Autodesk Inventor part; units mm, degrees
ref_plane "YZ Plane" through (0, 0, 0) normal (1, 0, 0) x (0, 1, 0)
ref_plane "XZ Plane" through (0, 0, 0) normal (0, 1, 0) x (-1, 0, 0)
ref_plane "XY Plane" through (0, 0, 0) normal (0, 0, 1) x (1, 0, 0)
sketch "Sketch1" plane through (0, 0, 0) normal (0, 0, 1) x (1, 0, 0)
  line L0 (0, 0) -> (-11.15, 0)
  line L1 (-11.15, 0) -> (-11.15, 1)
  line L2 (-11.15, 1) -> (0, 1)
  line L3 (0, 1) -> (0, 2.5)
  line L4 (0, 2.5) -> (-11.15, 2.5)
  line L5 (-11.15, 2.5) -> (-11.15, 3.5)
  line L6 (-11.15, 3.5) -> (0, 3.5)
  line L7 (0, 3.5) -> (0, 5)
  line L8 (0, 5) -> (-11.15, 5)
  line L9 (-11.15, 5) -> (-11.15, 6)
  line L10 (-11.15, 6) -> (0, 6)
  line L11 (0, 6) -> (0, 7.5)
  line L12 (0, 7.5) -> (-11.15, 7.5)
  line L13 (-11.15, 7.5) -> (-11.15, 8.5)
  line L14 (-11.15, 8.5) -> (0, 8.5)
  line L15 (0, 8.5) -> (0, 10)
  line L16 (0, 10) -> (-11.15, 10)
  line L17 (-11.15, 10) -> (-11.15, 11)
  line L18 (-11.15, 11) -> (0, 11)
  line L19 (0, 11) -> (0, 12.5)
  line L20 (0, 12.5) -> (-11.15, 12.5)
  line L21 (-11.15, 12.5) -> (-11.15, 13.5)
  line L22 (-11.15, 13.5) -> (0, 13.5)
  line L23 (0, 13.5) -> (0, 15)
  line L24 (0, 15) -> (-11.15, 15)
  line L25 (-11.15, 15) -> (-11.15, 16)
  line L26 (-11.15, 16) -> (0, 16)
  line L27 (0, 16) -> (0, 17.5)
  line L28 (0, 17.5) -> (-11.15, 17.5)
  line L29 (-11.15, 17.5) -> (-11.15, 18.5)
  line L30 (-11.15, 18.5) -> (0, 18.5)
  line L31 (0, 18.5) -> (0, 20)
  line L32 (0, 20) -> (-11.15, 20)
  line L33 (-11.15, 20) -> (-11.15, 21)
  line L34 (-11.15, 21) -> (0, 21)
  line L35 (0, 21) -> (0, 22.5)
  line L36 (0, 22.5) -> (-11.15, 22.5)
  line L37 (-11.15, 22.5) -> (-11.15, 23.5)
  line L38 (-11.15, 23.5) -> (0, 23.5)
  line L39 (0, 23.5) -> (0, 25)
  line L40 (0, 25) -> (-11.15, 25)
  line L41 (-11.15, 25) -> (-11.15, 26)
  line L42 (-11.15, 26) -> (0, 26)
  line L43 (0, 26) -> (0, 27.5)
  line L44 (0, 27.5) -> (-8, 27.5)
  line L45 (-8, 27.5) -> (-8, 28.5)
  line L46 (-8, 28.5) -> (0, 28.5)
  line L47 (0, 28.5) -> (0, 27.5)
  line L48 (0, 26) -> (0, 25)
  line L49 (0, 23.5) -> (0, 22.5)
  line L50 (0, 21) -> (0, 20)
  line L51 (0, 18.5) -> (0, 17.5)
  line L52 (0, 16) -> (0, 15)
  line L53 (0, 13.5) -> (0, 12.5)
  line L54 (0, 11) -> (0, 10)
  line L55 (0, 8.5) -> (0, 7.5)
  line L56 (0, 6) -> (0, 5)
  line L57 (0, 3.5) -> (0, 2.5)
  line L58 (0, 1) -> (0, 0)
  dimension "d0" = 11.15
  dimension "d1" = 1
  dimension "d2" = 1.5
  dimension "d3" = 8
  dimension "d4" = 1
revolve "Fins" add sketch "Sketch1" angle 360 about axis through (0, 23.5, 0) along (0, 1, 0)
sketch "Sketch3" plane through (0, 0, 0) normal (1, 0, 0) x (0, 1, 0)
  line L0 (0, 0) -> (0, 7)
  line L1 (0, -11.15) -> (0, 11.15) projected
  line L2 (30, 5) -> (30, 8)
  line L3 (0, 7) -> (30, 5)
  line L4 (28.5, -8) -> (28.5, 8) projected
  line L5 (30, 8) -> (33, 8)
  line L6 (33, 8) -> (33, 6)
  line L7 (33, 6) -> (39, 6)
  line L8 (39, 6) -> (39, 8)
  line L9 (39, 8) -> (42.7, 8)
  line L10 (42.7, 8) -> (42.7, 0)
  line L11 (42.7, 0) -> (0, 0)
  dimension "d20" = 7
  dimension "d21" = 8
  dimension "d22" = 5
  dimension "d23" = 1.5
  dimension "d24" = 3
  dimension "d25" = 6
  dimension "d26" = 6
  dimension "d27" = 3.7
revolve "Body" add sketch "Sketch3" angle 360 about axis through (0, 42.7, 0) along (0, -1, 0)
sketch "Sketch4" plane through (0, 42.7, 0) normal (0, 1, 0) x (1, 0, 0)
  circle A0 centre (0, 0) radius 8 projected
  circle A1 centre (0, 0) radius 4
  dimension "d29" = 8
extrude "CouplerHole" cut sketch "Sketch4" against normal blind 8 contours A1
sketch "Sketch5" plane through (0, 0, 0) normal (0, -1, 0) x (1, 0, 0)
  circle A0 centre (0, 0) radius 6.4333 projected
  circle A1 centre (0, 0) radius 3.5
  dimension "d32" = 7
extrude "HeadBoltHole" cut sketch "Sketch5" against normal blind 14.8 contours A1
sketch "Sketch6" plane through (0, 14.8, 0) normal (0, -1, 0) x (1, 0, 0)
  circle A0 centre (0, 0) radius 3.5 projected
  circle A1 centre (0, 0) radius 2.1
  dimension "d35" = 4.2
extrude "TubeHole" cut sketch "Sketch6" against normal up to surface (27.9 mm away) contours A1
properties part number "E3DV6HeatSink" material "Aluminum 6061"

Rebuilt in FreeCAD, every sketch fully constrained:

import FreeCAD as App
import Part
import Sketcher


def add_polygon(sketch, points):
    """Adds a closed chain of lines whose ends are joined by coincident constraints."""
    first, n = sketch.GeometryCount, len(points)
    for a, b in zip(points, points[1:] + points[:1]):
        sketch.addGeometry(Part.LineSegment(App.Vector(*a, 0), App.Vector(*b, 0)), False)
    for i in range(n):
        sketch.addConstraint(Sketcher.Constraint("Coincident", first + i, 2, first + (i + 1) % n, 1))

doc = App.newDocument("Part")
body = doc.addObject("PartDesign::Body", "Body")
body.AllowCompound = True

# Sketch on XY plane
sketch1 = doc.addObject("Sketcher::SketchObject", "Sketch")
body.addObject(sketch1)
sketch1.AttachmentSupport = (doc.XY_Plane, [""])
sketch1.MapMode = "FlatFace"
add_polygon(sketch1, [(-8, 27.5), (0, 27.5), (0, 28.5), (-8, 28.5)])  # lines 0-3
add_polygon(sketch1, [(-11.2, 25), (0, 25), (0, 26), (-11.2, 26)])  # lines 4-7
add_polygon(sketch1, [(-11.2, 22.5), (0, 22.5), (0, 23.5), (-11.2, 23.5)])  # lines 8-11
add_polygon(sketch1, [(-11.2, 20), (0, 20), (0, 21), (-11.2, 21)])  # lines 12-15
add_polygon(sketch1, [(-11.2, 17.5), (0, 17.5), (0, 18.5), (-11.2, 18.5)])  # lines 16-19
add_polygon(sketch1, [(-11.2, 15), (0, 15), (0, 16), (-11.2, 16)])  # lines 20-23
add_polygon(sketch1, [(-11.2, 12.5), (0, 12.5), (0, 13.5), (-11.2, 13.5)])  # lines 24-27
add_polygon(sketch1, [(-11.2, 10), (0, 10), (0, 11), (-11.2, 11)])  # lines 28-31
add_polygon(sketch1, [(-11.2, 7.5), (0, 7.5), (0, 8.5), (-11.2, 8.5)])  # lines 32-35
add_polygon(sketch1, [(-11.2, 5), (0, 5), (0, 6), (-11.2, 6)])  # lines 36-39
add_polygon(sketch1, [(-11.2, 2.5), (0, 2.5), (0, 3.5), (-11.2, 3.5)])  # lines 40-43
add_polygon(sketch1, [(-11.2, 0), (0, 0), (0, 1), (-11.2, 1)])  # lines 44-47
sketch1.addConstraint(Sketcher.Constraint("Horizontal", 0))
sketch1.addConstraint(Sketcher.Constraint("Vertical", 1))
sketch1.addConstraint(Sketcher.Constraint("Horizontal", 2))
sketch1.addConstraint(Sketcher.Constraint("Vertical", 3))
sketch1.addConstraint(Sketcher.Constraint("Horizontal", 4))
sketch1.addConstraint(Sketcher.Constraint("Vertical", 5))
sketch1.addConstraint(Sketcher.Constraint("Horizontal", 6))
sketch1.addConstraint(Sketcher.Constraint("Vertical", 7))
sketch1.addConstraint(Sketcher.Constraint("Horizontal", 8))
sketch1.addConstraint(Sketcher.Constraint("Vertical", 9))
sketch1.addConstraint(Sketcher.Constraint("Horizontal", 10))
sketch1.addConstraint(Sketcher.Constraint("Vertical", 11))
sketch1.addConstraint(Sketcher.Constraint("Horizontal", 12))
sketch1.addConstraint(Sketcher.Constraint("Vertical", 13))
sketch1.addConstraint(Sketcher.Constraint("Horizontal", 14))
sketch1.addConstraint(Sketcher.Constraint("Vertical", 15))
sketch1.addConstraint(Sketcher.Constraint("Horizontal", 16))
sketch1.addConstraint(Sketcher.Constraint("Vertical", 17))
sketch1.addConstraint(Sketcher.Constraint("Horizontal", 18))
sketch1.addConstraint(Sketcher.Constraint("Vertical", 19))
sketch1.addConstraint(Sketcher.Constraint("Horizontal", 20))
sketch1.addConstraint(Sketcher.Constraint("Vertical", 21))
sketch1.addConstraint(Sketcher.Constraint("Horizontal", 22))
sketch1.addConstraint(Sketcher.Constraint("Vertical", 23))
sketch1.addConstraint(Sketcher.Constraint("Horizontal", 24))
sketch1.addConstraint(Sketcher.Constraint("Vertical", 25))
sketch1.addConstraint(Sketcher.Constraint("Horizontal", 26))
sketch1.addConstraint(Sketcher.Constraint("Vertical", 27))
sketch1.addConstraint(Sketcher.Constraint("Horizontal", 28))
sketch1.addConstraint(Sketcher.Constraint("Vertical", 29))
sketch1.addConstraint(Sketcher.Constraint("Horizontal", 30))
sketch1.addConstraint(Sketcher.Constraint("Vertical", 31))
sketch1.addConstraint(Sketcher.Constraint("Horizontal", 32))
sketch1.addConstraint(Sketcher.Constraint("Vertical", 33))
sketch1.addConstraint(Sketcher.Constraint("Horizontal", 34))
sketch1.addConstraint(Sketcher.Constraint("Vertical", 35))
sketch1.addConstraint(Sketcher.Constraint("Horizontal", 36))
sketch1.addConstraint(Sketcher.Constraint("Vertical", 37))
sketch1.addConstraint(Sketcher.Constraint("Horizontal", 38))
sketch1.addConstraint(Sketcher.Constraint("Vertical", 39))
sketch1.addConstraint(Sketcher.Constraint("Horizontal", 40))
sketch1.addConstraint(Sketcher.Constraint("Vertical", 41))
sketch1.addConstraint(Sketcher.Constraint("Horizontal", 42))
sketch1.addConstraint(Sketcher.Constraint("Vertical", 43))
sketch1.addConstraint(Sketcher.Constraint("Horizontal", 44))
sketch1.addConstraint(Sketcher.Constraint("Vertical", 45))
sketch1.addConstraint(Sketcher.Constraint("Horizontal", 46))
sketch1.addConstraint(Sketcher.Constraint("Vertical", 47))
sketch1.addConstraint(Sketcher.Constraint("Coincident", 44, 2, -1, 1))
sketch1.addConstraint(Sketcher.Constraint("PointOnObject", 0, 2, -2))
sketch1.addConstraint(Sketcher.Constraint("PointOnObject", 4, 2, -2))
sketch1.addConstraint(Sketcher.Constraint("PointOnObject", 8, 2, -2))
sketch1.addConstraint(Sketcher.Constraint("PointOnObject", 12, 2, -2))
sketch1.addConstraint(Sketcher.Constraint("PointOnObject", 16, 2, -2))
sketch1.addConstraint(Sketcher.Constraint("PointOnObject", 20, 2, -2))
sketch1.addConstraint(Sketcher.Constraint("PointOnObject", 24, 2, -2))
sketch1.addConstraint(Sketcher.Constraint("PointOnObject", 28, 2, -2))
sketch1.addConstraint(Sketcher.Constraint("PointOnObject", 32, 2, -2))
sketch1.addConstraint(Sketcher.Constraint("PointOnObject", 36, 2, -2))
sketch1.addConstraint(Sketcher.Constraint("PointOnObject", 40, 2, -2))
sketch1.addConstraint(Sketcher.Constraint("Vertical", 7, 2, 10, 2))
sketch1.addConstraint(Sketcher.Constraint("Vertical", 11, 2, 14, 2))
sketch1.addConstraint(Sketcher.Constraint("Vertical", 15, 2, 18, 2))
sketch1.addConstraint(Sketcher.Constraint("Vertical", 19, 2, 22, 2))
sketch1.addConstraint(Sketcher.Constraint("Vertical", 23, 2, 26, 2))
sketch1.addConstraint(Sketcher.Constraint("Vertical", 27, 2, 30, 2))
sketch1.addConstraint(Sketcher.Constraint("Vertical", 31, 2, 34, 2))
sketch1.addConstraint(Sketcher.Constraint("Vertical", 35, 2, 38, 2))
sketch1.addConstraint(Sketcher.Constraint("Vertical", 39, 2, 42, 2))
sketch1.addConstraint(Sketcher.Constraint("Vertical", 43, 2, 46, 2))
sketch1.addConstraint(Sketcher.Constraint("Equal", 3, 5))
sketch1.addConstraint(Sketcher.Constraint("Equal", 7, 9))
sketch1.addConstraint(Sketcher.Constraint("Equal", 11, 13))
sketch1.addConstraint(Sketcher.Constraint("Equal", 15, 17))
sketch1.addConstraint(Sketcher.Constraint("Equal", 19, 21))
sketch1.addConstraint(Sketcher.Constraint("Equal", 23, 25))
sketch1.addConstraint(Sketcher.Constraint("Equal", 27, 29))
sketch1.addConstraint(Sketcher.Constraint("Equal", 31, 33))
sketch1.addConstraint(Sketcher.Constraint("Equal", 35, 37))
sketch1.addConstraint(Sketcher.Constraint("Equal", 39, 41))
sketch1.addConstraint(Sketcher.Constraint("Equal", 43, 45))
sketch1.addConstraint(Sketcher.Constraint("DistanceX", 0, 1, 0, 2, 8.0))
sketch1.addConstraint(Sketcher.Constraint("DistanceY", 1, 1, 1, 2, 1.0))
sketch1.addConstraint(Sketcher.Constraint("DistanceX", 4, 1, 4, 2, 11.15))
sketch1.addConstraint(Sketcher.Constraint("DistanceY", 5, 2, 0, 2, 1.5))
sketch1.addConstraint(Sketcher.Constraint("DistanceY", 9, 2, 4, 2, 1.5))
sketch1.addConstraint(Sketcher.Constraint("DistanceY", 13, 2, 8, 2, 1.5))
sketch1.addConstraint(Sketcher.Constraint("DistanceY", 17, 2, 12, 2, 1.5))
sketch1.addConstraint(Sketcher.Constraint("DistanceY", 21, 2, 16, 2, 1.5))
sketch1.addConstraint(Sketcher.Constraint("DistanceY", 25, 2, 20, 2, 1.5))
sketch1.addConstraint(Sketcher.Constraint("DistanceY", 29, 2, 24, 2, 1.5))
sketch1.addConstraint(Sketcher.Constraint("DistanceY", 33, 2, 28, 2, 1.5))
sketch1.addConstraint(Sketcher.Constraint("DistanceY", 37, 2, 32, 2, 1.5))
sketch1.addConstraint(Sketcher.Constraint("DistanceY", 41, 2, 36, 2, 1.5))
sketch1.addConstraint(Sketcher.Constraint("DistanceY", 45, 2, 40, 2, 1.5))
revolution = doc.addObject("PartDesign::Revolution", "Revolution")
body.addObject(revolution)
revolution.Profile = sketch1
revolution.ReferenceAxis = (sketch1, ["V_Axis"])
revolution.Angle = 360

# Sketch on YZ plane
sketch2 = doc.addObject("Sketcher::SketchObject", "Sketch001")
body.addObject(sketch2)
sketch2.AttachmentSupport = (doc.YZ_Plane, [""])
sketch2.MapMode = "FlatFace"
add_polygon(sketch2, [(0, 7), (0, 0), (42.7, 0), (42.7, 8), (39, 8), (39, 6), (33, 6), (33, 8), (30, 8), (30, 5)])  # lines 0-9
sketch2.addConstraint(Sketcher.Constraint("Vertical", 0))
sketch2.addConstraint(Sketcher.Constraint("Horizontal", 1))
sketch2.addConstraint(Sketcher.Constraint("Vertical", 2))
sketch2.addConstraint(Sketcher.Constraint("Horizontal", 3))
sketch2.addConstraint(Sketcher.Constraint("Vertical", 4))
sketch2.addConstraint(Sketcher.Constraint("Horizontal", 5))
sketch2.addConstraint(Sketcher.Constraint("Vertical", 6))
sketch2.addConstraint(Sketcher.Constraint("Horizontal", 7))
sketch2.addConstraint(Sketcher.Constraint("Vertical", 8))
sketch2.addConstraint(Sketcher.Constraint("Coincident", 0, 2, -1, 1))
sketch2.addConstraint(Sketcher.Constraint("Horizontal", 3, 2, 6, 2))
sketch2.addConstraint(Sketcher.Constraint("Equal", 7, 8))
sketch2.addConstraint(Sketcher.Constraint("DistanceX", 5, 2, 5, 1, 6.0))
sketch2.addConstraint(Sketcher.Constraint("DistanceX", 7, 2, 7, 1, 3.0))
sketch2.addConstraint(Sketcher.Constraint("DistanceY", 0, 2, 0, 1, 7.0))
sketch2.addConstraint(Sketcher.Constraint("DistanceY", 2, 1, 2, 2, 8.0))
sketch2.addConstraint(Sketcher.Constraint("DistanceX", 3, 2, 3, 1, 3.7))
sketch2.addConstraint(Sketcher.Constraint("DistanceY", -1, 1, 4, 2, 6.0))
sketch2.addConstraint(Sketcher.Constraint("DistanceX", 1, 1, 1, 2, 42.7))
revolution2 = doc.addObject("PartDesign::Revolution", "Revolution001")
body.addObject(revolution2)
revolution2.Profile = sketch2
revolution2.ReferenceAxis = (sketch2, ["H_Axis"])
revolution2.Angle = 360

# Sketch on XZ plane
sketch3 = doc.addObject("Sketcher::SketchObject", "Sketch002")
body.addObject(sketch3)
sketch3.AttachmentSupport = (doc.XZ_Plane, [""])
sketch3.MapMode = "FlatFace"
sketch3.AttachmentOffset = App.Placement(App.Vector(0, 0, -42.7), App.Rotation())
sketch3.addGeometry(Part.Circle(App.Vector(0, 0, 0), App.Vector(0, 0, 1), 4), False)
sketch3.addConstraint(Sketcher.Constraint("Coincident", 0, 3, -1, 1))
sketch3.addConstraint(Sketcher.Constraint("Diameter", 0, 8.0))
pocket1 = doc.addObject("PartDesign::Pocket", "Pocket")
body.addObject(pocket1)
pocket1.Profile = sketch3
pocket1.Length = 8
pocket1.Reversed = True

# Sketch on XZ plane
sketch4 = doc.addObject("Sketcher::SketchObject", "Sketch003")
body.addObject(sketch4)
sketch4.AttachmentSupport = (doc.XZ_Plane, [""])
sketch4.MapMode = "FlatFace"
sketch4.addGeometry(Part.Circle(App.Vector(0, 0, 0), App.Vector(0, 0, 1), 3.5), False)
sketch4.addConstraint(Sketcher.Constraint("Coincident", 0, 3, -1, 1))
sketch4.addConstraint(Sketcher.Constraint("Diameter", 0, 7.0))
pocket2 = doc.addObject("PartDesign::Pocket", "Pocket001")
body.addObject(pocket2)
pocket2.Profile = sketch4
pocket2.Length = 14.8

# Sketch on XZ plane
sketch5 = doc.addObject("Sketcher::SketchObject", "Sketch004")
body.addObject(sketch5)
sketch5.AttachmentSupport = (doc.XZ_Plane, [""])
sketch5.MapMode = "FlatFace"
sketch5.AttachmentOffset = App.Placement(App.Vector(0, 0, -14.8), App.Rotation())
sketch5.addGeometry(Part.Circle(App.Vector(0, 0, 0), App.Vector(0, 0, 1), 2.1), False)
sketch5.addConstraint(Sketcher.Constraint("Coincident", 0, 3, -1, 1))
sketch5.addConstraint(Sketcher.Constraint("Diameter", 0, 4.2))
pocket3 = doc.addObject("PartDesign::Pocket", "Pocket002")
body.addObject(pocket3)
pocket3.Profile = sketch5
pocket3.Length = 27.9

doc.recompute()
